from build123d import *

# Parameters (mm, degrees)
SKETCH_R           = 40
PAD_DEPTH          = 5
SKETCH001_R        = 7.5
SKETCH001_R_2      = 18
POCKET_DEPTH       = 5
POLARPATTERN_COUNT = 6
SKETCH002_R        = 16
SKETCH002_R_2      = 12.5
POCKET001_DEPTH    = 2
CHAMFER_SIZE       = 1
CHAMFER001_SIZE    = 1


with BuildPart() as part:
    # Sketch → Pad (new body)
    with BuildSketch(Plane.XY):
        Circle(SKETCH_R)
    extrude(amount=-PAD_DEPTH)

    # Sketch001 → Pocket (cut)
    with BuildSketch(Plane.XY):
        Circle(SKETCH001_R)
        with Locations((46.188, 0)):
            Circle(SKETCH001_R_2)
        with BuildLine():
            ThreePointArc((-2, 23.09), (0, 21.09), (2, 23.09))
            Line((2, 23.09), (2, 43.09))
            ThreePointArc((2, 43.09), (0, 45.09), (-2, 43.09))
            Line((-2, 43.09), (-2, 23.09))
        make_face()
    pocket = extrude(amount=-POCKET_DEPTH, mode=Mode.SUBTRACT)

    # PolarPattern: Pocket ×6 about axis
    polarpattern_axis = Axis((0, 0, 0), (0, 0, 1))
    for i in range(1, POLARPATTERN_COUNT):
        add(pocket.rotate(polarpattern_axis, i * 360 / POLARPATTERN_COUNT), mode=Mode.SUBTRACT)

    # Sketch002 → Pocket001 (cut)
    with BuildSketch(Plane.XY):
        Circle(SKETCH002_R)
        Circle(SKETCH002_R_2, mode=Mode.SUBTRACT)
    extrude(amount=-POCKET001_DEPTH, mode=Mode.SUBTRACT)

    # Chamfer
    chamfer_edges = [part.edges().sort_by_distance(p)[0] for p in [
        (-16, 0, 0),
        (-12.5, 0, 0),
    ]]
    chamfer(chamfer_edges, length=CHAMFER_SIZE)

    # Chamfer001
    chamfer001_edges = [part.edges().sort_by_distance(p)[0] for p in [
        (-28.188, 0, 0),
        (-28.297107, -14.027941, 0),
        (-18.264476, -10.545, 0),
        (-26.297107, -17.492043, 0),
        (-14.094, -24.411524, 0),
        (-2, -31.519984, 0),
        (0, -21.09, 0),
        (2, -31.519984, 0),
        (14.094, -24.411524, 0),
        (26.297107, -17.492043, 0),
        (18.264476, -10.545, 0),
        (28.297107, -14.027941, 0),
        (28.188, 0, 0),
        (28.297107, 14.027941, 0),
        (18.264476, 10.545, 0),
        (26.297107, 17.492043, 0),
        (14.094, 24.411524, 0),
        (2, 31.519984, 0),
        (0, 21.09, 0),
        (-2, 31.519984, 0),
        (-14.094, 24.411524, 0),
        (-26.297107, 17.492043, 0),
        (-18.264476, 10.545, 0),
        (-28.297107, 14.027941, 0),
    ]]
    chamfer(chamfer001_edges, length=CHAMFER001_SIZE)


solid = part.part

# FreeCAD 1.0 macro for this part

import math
import FreeCAD as App
import Part
import Sketcher

V = App.Vector
Q = App.Units.Quantity


def edges_at(feature, points):
    """Names of the edges that pass closest to the given points."""
    edges = feature.Shape.Edges
    near = lambda p: min(range(len(edges)), key=lambda i: edges[i].distToShape(Part.Vertex(*p))[0])
    return sorted({f"Edge{near(p) + 1}" for p in points})

doc = App.newDocument("Part")
body = doc.addObject("PartDesign::Body", "Body")

sketch1 = body.newObject("Sketcher::SketchObject", "Sketch")
sketch1.AttachmentSupport = (doc.getObject("XY_Plane"), [""])
sketch1.MapMode = "FlatFace"
sketch1.addGeometry(Part.Circle(V(0, 0, 0), V(0, 0, 1), 40), False)
sketch1.addConstraint([
    Sketcher.Constraint("Coincident", 0, 3, -1, 1),
    Sketcher.Constraint("Diameter", 0, Q("80 mm")),
])
pad1 = body.newObject("PartDesign::Pad", "Pad")
pad1.Profile = sketch1
pad1.Length = 5
pad1.Reversed = True

sketch2 = body.newObject("Sketcher::SketchObject", "Sketch001")
sketch2.AttachmentSupport = (doc.getObject("XY_Plane"), [""])
sketch2.MapMode = "FlatFace"
sketch2.addGeometry([
    Part.Circle(V(0, 0, 0), V(0, 0, 1), 7.5),
    Part.Circle(V(46.2, 0, 0), V(0, 0, 1), 18),
    Part.ArcOfCircle(Part.Circle(V(0, 23.1, 0), V(0, 0, 1), 2), math.radians(180), math.radians(360)),
    Part.LineSegment(V(2, 23.1, 0), V(2, 43.1, 0)),
    Part.ArcOfCircle(Part.Circle(V(0, 43.1, 0), V(0, 0, 1), 2), math.radians(0), math.radians(180)),
    Part.LineSegment(V(-2, 43.1, 0), V(-2, 23.1, 0)),
], False)
sketch2.addConstraint([
    Sketcher.Constraint("Tangent", 2, 2, 3, 1),
    Sketcher.Constraint("Tangent", 3, 2, 4, 1),
    Sketcher.Constraint("Tangent", 4, 2, 5, 1),
    Sketcher.Constraint("Tangent", 5, 2, 2, 1),
    Sketcher.Constraint("Vertical", 3),
    Sketcher.Constraint("Vertical", 5),
    Sketcher.Constraint("Coincident", 0, 3, -1, 1),
    Sketcher.Constraint("PointOnObject", 1, 3, -1),
    Sketcher.Constraint("PointOnObject", 2, 3, -2),
    Sketcher.Constraint("Diameter", 0, Q("15 mm")),
    Sketcher.Constraint("Diameter", 1, Q("36 mm")),
    Sketcher.Constraint("Radius", 2, Q("2 mm")),
    Sketcher.Constraint("DistanceY", 3, 1, 3, 2, Q("20 mm")),
    Sketcher.Constraint("DistanceY", -1, 1, 2, 3, Q("23.09 mm")),
    Sketcher.Constraint("DistanceX", -1, 1, 1, 3, Q("46.188 mm")),
])
pocket1 = body.newObject("PartDesign::Pocket", "Pocket")
pocket1.Profile = sketch2
pocket1.Length = 5
doc.recompute()

polarpattern = body.newObject("PartDesign::PolarPattern", "PolarPattern")
polarpattern.Originals = [pocket1]
polarpattern.Axis = (doc.getObject("Z_Axis"), [""])
polarpattern.Angle = 360
polarpattern.Occurrences = 6
body.Tip = polarpattern

sketch3 = body.newObject("Sketcher::SketchObject", "Sketch002")
sketch3.AttachmentSupport = (doc.getObject("XY_Plane"), [""])
sketch3.MapMode = "FlatFace"
sketch3.addGeometry([
    Part.Circle(V(0, 0, 0), V(0, 0, 1), 16),
    Part.Circle(V(0, 0, 0), V(0, 0, 1), 12),
], False)
sketch3.addConstraint([
    Sketcher.Constraint("Coincident", 0, 3, -1, 1),
    Sketcher.Constraint("Coincident", 1, 3, -1, 1),
    Sketcher.Constraint("Diameter", 0, Q("32 mm")),
    Sketcher.Constraint("Diameter", 1, Q("25 mm")),
])
pocket2 = body.newObject("PartDesign::Pocket", "Pocket001")
pocket2.Profile = sketch3
pocket2.Length = 2
doc.recompute()

chamfer = body.newObject("PartDesign::Chamfer", "Chamfer")
chamfer.Base = (pocket2, edges_at(pocket2, [(-16, 0, 0), (-12.5, 0, 0)]))
chamfer.Size = 1
doc.recompute()

chamfer2 = body.newObject("PartDesign::Chamfer", "Chamfer001")
chamfer2.Base = (chamfer, edges_at(chamfer, [
    (-28.188, 0, 0),
    (-28.297, -14.028, 0),
    (-18.264, -10.545, 0),
    (-26.297, -17.492, 0),
    (-14.094, -24.412, 0),
    (-2, -31.52, 0),
    (0, -21.09, 0),
    (2, -31.52, 0),
    (14.094, -24.412, 0),
    (26.297, -17.492, 0),
    (18.264, -10.545, 0),
    (28.297, -14.028, 0),
    (28.188, 0, 0),
    (28.297, 14.028, 0),
    (18.264, 10.545, 0),
    (26.297, 17.492, 0),
    (14.094, 24.412, 0),
    (2, 31.52, 0),
    (0, 21.09, 0),
    (-2, 31.52, 0),
    (-14.094, 24.412, 0),
    (-26.297, 17.492, 0),
    (-18.264, 10.545, 0),
    (-28.297, 14.028, 0),
]))
chamfer2.Size = 1

doc.recompute()
